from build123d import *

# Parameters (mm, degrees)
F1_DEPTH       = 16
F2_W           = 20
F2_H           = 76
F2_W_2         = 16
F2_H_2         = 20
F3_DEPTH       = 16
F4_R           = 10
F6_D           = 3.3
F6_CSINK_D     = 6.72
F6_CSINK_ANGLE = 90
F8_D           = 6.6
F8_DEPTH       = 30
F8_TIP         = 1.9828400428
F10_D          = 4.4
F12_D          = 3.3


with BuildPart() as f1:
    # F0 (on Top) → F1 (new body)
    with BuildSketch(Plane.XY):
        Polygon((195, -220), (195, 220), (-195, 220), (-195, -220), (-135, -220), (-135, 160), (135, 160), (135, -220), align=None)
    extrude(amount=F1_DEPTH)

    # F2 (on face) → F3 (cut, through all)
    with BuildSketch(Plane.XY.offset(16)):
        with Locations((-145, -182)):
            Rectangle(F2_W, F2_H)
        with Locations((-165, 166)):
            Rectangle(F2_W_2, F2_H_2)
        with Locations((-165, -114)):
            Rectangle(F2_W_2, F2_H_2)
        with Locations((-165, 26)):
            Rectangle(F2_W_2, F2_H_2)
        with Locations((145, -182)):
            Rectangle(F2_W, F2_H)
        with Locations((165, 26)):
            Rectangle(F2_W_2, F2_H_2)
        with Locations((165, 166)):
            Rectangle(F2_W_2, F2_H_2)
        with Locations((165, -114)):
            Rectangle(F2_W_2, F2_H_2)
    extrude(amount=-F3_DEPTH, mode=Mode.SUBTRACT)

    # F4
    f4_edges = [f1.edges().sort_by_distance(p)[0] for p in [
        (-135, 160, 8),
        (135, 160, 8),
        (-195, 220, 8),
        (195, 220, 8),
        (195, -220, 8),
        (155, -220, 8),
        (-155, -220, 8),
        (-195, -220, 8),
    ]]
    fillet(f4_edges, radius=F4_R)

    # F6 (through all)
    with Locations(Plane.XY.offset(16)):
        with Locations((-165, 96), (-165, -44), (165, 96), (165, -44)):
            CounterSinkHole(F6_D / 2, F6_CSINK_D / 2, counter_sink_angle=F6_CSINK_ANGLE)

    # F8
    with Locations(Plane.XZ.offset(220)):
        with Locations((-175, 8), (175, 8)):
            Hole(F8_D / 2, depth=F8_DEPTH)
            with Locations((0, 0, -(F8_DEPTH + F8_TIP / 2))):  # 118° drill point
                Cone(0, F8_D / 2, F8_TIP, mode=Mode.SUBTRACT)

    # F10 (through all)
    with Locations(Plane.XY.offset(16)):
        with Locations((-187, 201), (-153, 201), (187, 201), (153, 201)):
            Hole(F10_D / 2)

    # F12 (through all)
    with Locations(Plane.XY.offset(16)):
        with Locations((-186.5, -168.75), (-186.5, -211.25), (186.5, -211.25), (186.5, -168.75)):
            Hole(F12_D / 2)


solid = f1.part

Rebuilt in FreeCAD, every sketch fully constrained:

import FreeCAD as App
import Part
import Sketcher

V = App.Vector
Q = App.Units.Quantity


def edges_at(feature, points):
    """Names of the edges that pass closest to the given points."""
    edges = feature.Shape.Edges
    near = lambda p: min(range(len(edges)), key=lambda i: edges[i].distToShape(Part.Vertex(*p))[0])
    return sorted({f"Edge{near(p) + 1}" for p in points})


def add_polygon(sketch, points):
    """Adds a closed chain of lines whose ends are joined by coincident constraints."""
    first, n = sketch.GeometryCount, len(points)
    for a, b in zip(points, points[1:] + points[:1]):
        sketch.addGeometry(Part.LineSegment(App.Vector(*a, 0), App.Vector(*b, 0)), False)
    for i in range(n):
        sketch.addConstraint(Sketcher.Constraint("Coincident", first + i, 2, first + (i + 1) % n, 1))

doc = App.newDocument("Part")
body = doc.addObject("PartDesign::Body", "Body")

# Sketch on XY plane
sketch1 = body.newObject("Sketcher::SketchObject", "Sketch")
sketch1.AttachmentSupport = (doc.getObject("XY_Plane"), [""])
sketch1.MapMode = "FlatFace"
add_polygon(sketch1, [(195, -220), (195, 220), (-195, 220), (-195, -220), (-135, -220), (-135, 160), (135, 160), (135, -220)])  # lines 0-7
sketch1.addConstraint(Sketcher.Constraint("Vertical", 0))
sketch1.addConstraint(Sketcher.Constraint("Horizontal", 1))
sketch1.addConstraint(Sketcher.Constraint("Vertical", 2))
sketch1.addConstraint(Sketcher.Constraint("Horizontal", 3))
sketch1.addConstraint(Sketcher.Constraint("Vertical", 4))
sketch1.addConstraint(Sketcher.Constraint("Horizontal", 5))
sketch1.addConstraint(Sketcher.Constraint("Vertical", 6))
sketch1.addConstraint(Sketcher.Constraint("Horizontal", 7))
sketch1.addConstraint(Sketcher.Constraint("Symmetric", 0, 2, 2, 2, -1, 1))
sketch1.addConstraint(Sketcher.Constraint("Symmetric", 3, 2, 6, 2, -2))
sketch1.addConstraint(Sketcher.Constraint("DistanceX", 1, 2, 1, 1, Q("390 mm")))
sketch1.addConstraint(Sketcher.Constraint("DistanceX", 3, 1, 3, 2, Q("60 mm")))
sketch1.addConstraint(Sketcher.Constraint("DistanceY", 0, 1, 0, 2, Q("440 mm")))
sketch1.addConstraint(Sketcher.Constraint("DistanceY", 4, 1, 4, 2, Q("380 mm")))
pad1 = body.newObject("PartDesign::Pad", "Pad")
pad1.Profile = sketch1
pad1.Length = 16

# Sketch on XY plane
sketch2 = body.newObject("Sketcher::SketchObject", "Sketch001")
sketch2.AttachmentSupport = (doc.getObject("XY_Plane"), [""])
sketch2.MapMode = "FlatFace"
sketch2.AttachmentOffset = App.Placement(V(0, 0, 16), App.Rotation())
add_polygon(sketch2, [(-155, -144), (-155, -220), (-135, -220), (-135, -144)])  # lines 0-3
add_polygon(sketch2, [(-173, 176), (-173, 156), (-157, 156), (-157, 176)])  # lines 4-7
add_polygon(sketch2, [(-173, -104), (-173, -124), (-157, -124), (-157, -104)])  # lines 8-11
add_polygon(sketch2, [(-173, 36), (-173, 16), (-157, 16), (-157, 36)])  # lines 12-15
add_polygon(sketch2, [(135, -144), (135, -220), (155, -220), (155, -144)])  # lines 16-19
add_polygon(sketch2, [(157, 36), (157, 16), (173, 16), (173, 36)])  # lines 20-23
add_polygon(sketch2, [(157, 176), (157, 156), (173, 156), (173, 176)])  # lines 24-27
add_polygon(sketch2, [(157, -104), (157, -124), (173, -124), (173, -104)])  # lines 28-31
sketch2.addConstraint(Sketcher.Constraint("Vertical", 0))
sketch2.addConstraint(Sketcher.Constraint("Horizontal", 1))
sketch2.addConstraint(Sketcher.Constraint("Vertical", 2))
sketch2.addConstraint(Sketcher.Constraint("Horizontal", 3))
sketch2.addConstraint(Sketcher.Constraint("Vertical", 4))
sketch2.addConstraint(Sketcher.Constraint("Horizontal", 5))
sketch2.addConstraint(Sketcher.Constraint("Vertical", 6))
sketch2.addConstraint(Sketcher.Constraint("Horizontal", 7))
sketch2.addConstraint(Sketcher.Constraint("Vertical", 8))
sketch2.addConstraint(Sketcher.Constraint("Horizontal", 9))
sketch2.addConstraint(Sketcher.Constraint("Vertical", 10))
sketch2.addConstraint(Sketcher.Constraint("Horizontal", 11))
sketch2.addConstraint(Sketcher.Constraint("Vertical", 12))
sketch2.addConstraint(Sketcher.Constraint("Horizontal", 13))
sketch2.addConstraint(Sketcher.Constraint("Vertical", 14))
sketch2.addConstraint(Sketcher.Constraint("Horizontal", 15))
sketch2.addConstraint(Sketcher.Constraint("Vertical", 16))
sketch2.addConstraint(Sketcher.Constraint("Horizontal", 17))
sketch2.addConstraint(Sketcher.Constraint("Vertical", 18))
sketch2.addConstraint(Sketcher.Constraint("Horizontal", 19))
sketch2.addConstraint(Sketcher.Constraint("Vertical", 20))
sketch2.addConstraint(Sketcher.Constraint("Horizontal", 21))
sketch2.addConstraint(Sketcher.Constraint("Vertical", 22))
sketch2.addConstraint(Sketcher.Constraint("Horizontal", 23))
sketch2.addConstraint(Sketcher.Constraint("Vertical", 24))
sketch2.addConstraint(Sketcher.Constraint("Horizontal", 25))
sketch2.addConstraint(Sketcher.Constraint("Vertical", 26))
sketch2.addConstraint(Sketcher.Constraint("Horizontal", 27))
sketch2.addConstraint(Sketcher.Constraint("Vertical", 28))
sketch2.addConstraint(Sketcher.Constraint("Horizontal", 29))
sketch2.addConstraint(Sketcher.Constraint("Vertical", 30))
sketch2.addConstraint(Sketcher.Constraint("Horizontal", 31))
sketch2.addConstraint(Sketcher.Constraint("Symmetric", 1, 2, 16, 2, -2))
sketch2.addConstraint(Sketcher.Constraint("Symmetric", 3, 2, 18, 2, -2))
sketch2.addConstraint(Sketcher.Constraint("Symmetric", 13, 2, 20, 2, -2))
sketch2.addConstraint(Sketcher.Constraint("Symmetric", 15, 2, 22, 2, -2))
sketch2.addConstraint(Sketcher.Constraint("Symmetric", 5, 2, 24, 2, -2))
sketch2.addConstraint(Sketcher.Constraint("Symmetric", 7, 2, 26, 2, -2))
sketch2.addConstraint(Sketcher.Constraint("Symmetric", 9, 2, 28, 2, -2))
sketch2.addConstraint(Sketcher.Constraint("Symmetric", 11, 2, 30, 2, -2))
sketch2.addConstraint(Sketcher.Constraint("Vertical", 7, 2, 8, 2))
sketch2.addConstraint(Sketcher.Constraint("Vertical", 6, 2, 9, 2))
sketch2.addConstraint(Sketcher.Constraint("Vertical", 11, 2, 12, 2))
sketch2.addConstraint(Sketcher.Constraint("Vertical", 10, 2, 13, 2))
sketch2.addConstraint(Sketcher.Constraint("Equal", 19, 4))
sketch2.addConstraint(Sketcher.Constraint("Equal", 6, 8))
sketch2.addConstraint(Sketcher.Constraint("Equal", 10, 12))
sketch2.addConstraint(Sketcher.Constraint("DistanceX", 1, 1, 1, 2, Q("20 mm")))
sketch2.addConstraint(Sketcher.Constraint("DistanceX", 5, 1, 5, 2, Q("16 mm")))
sketch2.addConstraint(Sketcher.Constraint("DistanceY", 0, 2, 0, 1, Q("76 mm")))
sketch2.addConstraint(Sketcher.Constraint("DistanceX", 0, 2, -1, 1, Q("155 mm")))
sketch2.addConstraint(Sketcher.Constraint("DistanceY", 0, 2, -1, 1, Q("220 mm")))
sketch2.addConstraint(Sketcher.Constraint("DistanceX", 4, 2, -1, 1, Q("173 mm")))
sketch2.addConstraint(Sketcher.Constraint("DistanceY", -1, 1, 4, 2, Q("156 mm")))
sketch2.addConstraint(Sketcher.Constraint("DistanceY", 8, 2, -1, 1, Q("124 mm")))
sketch2.addConstraint(Sketcher.Constraint("DistanceY", -1, 1, 12, 2, Q("16 mm")))
pocket1 = body.newObject("PartDesign::Pocket", "Pocket")
pocket1.Profile = sketch2
pocket1.Type = "ThroughAll"
doc.recompute()

fillet = body.newObject("PartDesign::Fillet", "Fillet")
fillet.Base = (pocket1, edges_at(pocket1, [
    (-135, 160, 8),
    (135, 160, 8),
    (-195, 220, 8),
    (195, 220, 8),
    (195, -220, 8),
    (155, -220, 8),
    (-155, -220, 8),
    (-195, -220, 8),
]))
fillet.Radius = 10

# Sketch on XY plane
sketch3 = body.newObject("Sketcher::SketchObject", "Sketch002")
sketch3.AttachmentSupport = (doc.getObject("XY_Plane"), [""])
sketch3.MapMode = "FlatFace"
sketch3.AttachmentOffset = App.Placement(V(0, 0, 16), App.Rotation())
sketch3.addGeometry(Part.Circle(V(-165, 96, 0), V(0, 0, 1), 1.65), False)
sketch3.addGeometry(Part.Circle(V(-165, -44, 0), V(0, 0, 1), 1.65), False)
sketch3.addGeometry(Part.Circle(V(165, 96, 0), V(0, 0, 1), 1.65), False)
sketch3.addGeometry(Part.Circle(V(165, -44, 0), V(0, 0, 1), 1.65), False)
sketch3.addConstraint(Sketcher.Constraint("Equal", 0, 1))
sketch3.addConstraint(Sketcher.Constraint("Equal", 1, 2))
sketch3.addConstraint(Sketcher.Constraint("Equal", 2, 3))
sketch3.addConstraint(Sketcher.Constraint("Symmetric", 0, 3, 2, 3, -2))
sketch3.addConstraint(Sketcher.Constraint("Symmetric", 1, 3, 3, 3, -2))
sketch3.addConstraint(Sketcher.Constraint("Vertical", 0, 3, 1, 3))
sketch3.addConstraint(Sketcher.Constraint("Diameter", 0, Q("3.3 mm")))
sketch3.addConstraint(Sketcher.Constraint("DistanceX", 0, 3, -1, 1, Q("165 mm")))
sketch3.addConstraint(Sketcher.Constraint("DistanceY", -1, 1, 0, 3, Q("96 mm")))
sketch3.addConstraint(Sketcher.Constraint("DistanceY", 1, 3, -1, 1, Q("44 mm")))
doc.recompute()
hole = body.newObject("PartDesign::Hole", "Hole")
hole.Profile = sketch3
hole.ThreadType = "None"
hole.Diameter = 3.3
hole.DepthType = "ThroughAll"
hole.HoleCutType = "Countersink"
hole.HoleCutDiameter = 6.72
hole.HoleCutCountersinkAngle = 90

# Sketch on XZ plane
sketch4 = body.newObject("Sketcher::SketchObject", "Sketch003")
sketch4.AttachmentSupport = (doc.getObject("XZ_Plane"), [""])
sketch4.MapMode = "FlatFace"
sketch4.AttachmentOffset = App.Placement(V(0, 0, 220), App.Rotation())
sketch4.addGeometry(Part.Circle(V(-175, 8, 0), V(0, 0, 1), 3.3), False)
sketch4.addGeometry(Part.Circle(V(175, 8, 0), V(0, 0, 1), 3.3), False)
sketch4.addConstraint(Sketcher.Constraint("Equal", 0, 1))
sketch4.addConstraint(Sketcher.Constraint("Symmetric", 0, 3, 1, 3, -2))
sketch4.addConstraint(Sketcher.Constraint("Diameter", 0, Q("6.6 mm")))
sketch4.addConstraint(Sketcher.Constraint("DistanceX", 0, 3, -1, 1, Q("175 mm")))
sketch4.addConstraint(Sketcher.Constraint("DistanceY", -1, 1, 0, 3, Q("8 mm")))
doc.recompute()
hole2 = body.newObject("PartDesign::Hole", "Hole001")
hole2.Profile = sketch4
hole2.ThreadType = "None"
hole2.Diameter = 6.6
hole2.DepthType = "Dimension"
hole2.Depth = 30
hole2.DrillPoint = "Angled"
hole2.DrillPointAngle = 118

# Sketch on XY plane
sketch5 = body.newObject("Sketcher::SketchObject", "Sketch004")
sketch5.AttachmentSupport = (doc.getObject("XY_Plane"), [""])
sketch5.MapMode = "FlatFace"
sketch5.AttachmentOffset = App.Placement(V(0, 0, 16), App.Rotation())
sketch5.addGeometry(Part.Circle(V(-187, 201, 0), V(0, 0, 1), 2.2), False)
sketch5.addGeometry(Part.Circle(V(-153, 201, 0), V(0, 0, 1), 2.2), False)
sketch5.addGeometry(Part.Circle(V(187, 201, 0), V(0, 0, 1), 2.2), False)
sketch5.addGeometry(Part.Circle(V(153, 201, 0), V(0, 0, 1), 2.2), False)
sketch5.addConstraint(Sketcher.Constraint("Equal", 0, 1))
sketch5.addConstraint(Sketcher.Constraint("Equal", 1, 2))
sketch5.addConstraint(Sketcher.Constraint("Equal", 2, 3))
sketch5.addConstraint(Sketcher.Constraint("Symmetric", 0, 3, 2, 3, -2))
sketch5.addConstraint(Sketcher.Constraint("Symmetric", 1, 3, 3, 3, -2))
sketch5.addConstraint(Sketcher.Constraint("Horizontal", 0, 3, 1, 3))
sketch5.addConstraint(Sketcher.Constraint("Diameter", 0, Q("4.4 mm")))
sketch5.addConstraint(Sketcher.Constraint("DistanceX", 0, 3, -1, 1, Q("187 mm")))
sketch5.addConstraint(Sketcher.Constraint("DistanceY", -1, 1, 0, 3, Q("201 mm")))
sketch5.addConstraint(Sketcher.Constraint("DistanceX", 1, 3, -1, 1, Q("153 mm")))
doc.recompute()
hole3 = body.newObject("PartDesign::Hole", "Hole002")
hole3.Profile = sketch5
hole3.ThreadType = "None"
hole3.Diameter = 4.4
hole3.DepthType = "ThroughAll"

# Sketch on XY plane
sketch6 = body.newObject("Sketcher::SketchObject", "Sketch005")
sketch6.AttachmentSupport = (doc.getObject("XY_Plane"), [""])
sketch6.MapMode = "FlatFace"
sketch6.AttachmentOffset = App.Placement(V(0, 0, 16), App.Rotation())
sketch6.addGeometry(Part.Circle(V(-186.5, -168.75, 0), V(0, 0, 1), 1.65), False)
sketch6.addGeometry(Part.Circle(V(-186.5, -211.25, 0), V(0, 0, 1), 1.65), False)
sketch6.addGeometry(Part.Circle(V(186.5, -211.25, 0), V(0, 0, 1), 1.65), False)
sketch6.addGeometry(Part.Circle(V(186.5, -168.75, 0), V(0, 0, 1), 1.65), False)
sketch6.addConstraint(Sketcher.Constraint("Equal", 0, 1))
sketch6.addConstraint(Sketcher.Constraint("Equal", 1, 2))
sketch6.addConstraint(Sketcher.Constraint("Equal", 2, 3))
sketch6.addConstraint(Sketcher.Constraint("Symmetric", 1, 3, 2, 3, -2))
sketch6.addConstraint(Sketcher.Constraint("Symmetric", 0, 3, 3, 3, -2))
sketch6.addConstraint(Sketcher.Constraint("Vertical", 0, 3, 1, 3))
sketch6.addConstraint(Sketcher.Constraint("Diameter", 0, Q("3.3 mm")))
sketch6.addConstraint(Sketcher.Constraint("DistanceX", 1, 3, 2, 3, Q("373 mm")))
sketch6.addConstraint(Sketcher.Constraint("DistanceY", 1, 3, 0, 3, Q("42.5 mm")))
sketch6.addConstraint(Sketcher.Constraint("DistanceY", 0, 3, -1, 1, Q("168.75 mm")))
doc.recompute()
hole4 = body.newObject("PartDesign::Hole", "Hole003")
hole4.Profile = sketch6
hole4.ThreadType = "None"
hole4.Diameter = 3.3
hole4.DepthType = "ThroughAll"

doc.recompute()
